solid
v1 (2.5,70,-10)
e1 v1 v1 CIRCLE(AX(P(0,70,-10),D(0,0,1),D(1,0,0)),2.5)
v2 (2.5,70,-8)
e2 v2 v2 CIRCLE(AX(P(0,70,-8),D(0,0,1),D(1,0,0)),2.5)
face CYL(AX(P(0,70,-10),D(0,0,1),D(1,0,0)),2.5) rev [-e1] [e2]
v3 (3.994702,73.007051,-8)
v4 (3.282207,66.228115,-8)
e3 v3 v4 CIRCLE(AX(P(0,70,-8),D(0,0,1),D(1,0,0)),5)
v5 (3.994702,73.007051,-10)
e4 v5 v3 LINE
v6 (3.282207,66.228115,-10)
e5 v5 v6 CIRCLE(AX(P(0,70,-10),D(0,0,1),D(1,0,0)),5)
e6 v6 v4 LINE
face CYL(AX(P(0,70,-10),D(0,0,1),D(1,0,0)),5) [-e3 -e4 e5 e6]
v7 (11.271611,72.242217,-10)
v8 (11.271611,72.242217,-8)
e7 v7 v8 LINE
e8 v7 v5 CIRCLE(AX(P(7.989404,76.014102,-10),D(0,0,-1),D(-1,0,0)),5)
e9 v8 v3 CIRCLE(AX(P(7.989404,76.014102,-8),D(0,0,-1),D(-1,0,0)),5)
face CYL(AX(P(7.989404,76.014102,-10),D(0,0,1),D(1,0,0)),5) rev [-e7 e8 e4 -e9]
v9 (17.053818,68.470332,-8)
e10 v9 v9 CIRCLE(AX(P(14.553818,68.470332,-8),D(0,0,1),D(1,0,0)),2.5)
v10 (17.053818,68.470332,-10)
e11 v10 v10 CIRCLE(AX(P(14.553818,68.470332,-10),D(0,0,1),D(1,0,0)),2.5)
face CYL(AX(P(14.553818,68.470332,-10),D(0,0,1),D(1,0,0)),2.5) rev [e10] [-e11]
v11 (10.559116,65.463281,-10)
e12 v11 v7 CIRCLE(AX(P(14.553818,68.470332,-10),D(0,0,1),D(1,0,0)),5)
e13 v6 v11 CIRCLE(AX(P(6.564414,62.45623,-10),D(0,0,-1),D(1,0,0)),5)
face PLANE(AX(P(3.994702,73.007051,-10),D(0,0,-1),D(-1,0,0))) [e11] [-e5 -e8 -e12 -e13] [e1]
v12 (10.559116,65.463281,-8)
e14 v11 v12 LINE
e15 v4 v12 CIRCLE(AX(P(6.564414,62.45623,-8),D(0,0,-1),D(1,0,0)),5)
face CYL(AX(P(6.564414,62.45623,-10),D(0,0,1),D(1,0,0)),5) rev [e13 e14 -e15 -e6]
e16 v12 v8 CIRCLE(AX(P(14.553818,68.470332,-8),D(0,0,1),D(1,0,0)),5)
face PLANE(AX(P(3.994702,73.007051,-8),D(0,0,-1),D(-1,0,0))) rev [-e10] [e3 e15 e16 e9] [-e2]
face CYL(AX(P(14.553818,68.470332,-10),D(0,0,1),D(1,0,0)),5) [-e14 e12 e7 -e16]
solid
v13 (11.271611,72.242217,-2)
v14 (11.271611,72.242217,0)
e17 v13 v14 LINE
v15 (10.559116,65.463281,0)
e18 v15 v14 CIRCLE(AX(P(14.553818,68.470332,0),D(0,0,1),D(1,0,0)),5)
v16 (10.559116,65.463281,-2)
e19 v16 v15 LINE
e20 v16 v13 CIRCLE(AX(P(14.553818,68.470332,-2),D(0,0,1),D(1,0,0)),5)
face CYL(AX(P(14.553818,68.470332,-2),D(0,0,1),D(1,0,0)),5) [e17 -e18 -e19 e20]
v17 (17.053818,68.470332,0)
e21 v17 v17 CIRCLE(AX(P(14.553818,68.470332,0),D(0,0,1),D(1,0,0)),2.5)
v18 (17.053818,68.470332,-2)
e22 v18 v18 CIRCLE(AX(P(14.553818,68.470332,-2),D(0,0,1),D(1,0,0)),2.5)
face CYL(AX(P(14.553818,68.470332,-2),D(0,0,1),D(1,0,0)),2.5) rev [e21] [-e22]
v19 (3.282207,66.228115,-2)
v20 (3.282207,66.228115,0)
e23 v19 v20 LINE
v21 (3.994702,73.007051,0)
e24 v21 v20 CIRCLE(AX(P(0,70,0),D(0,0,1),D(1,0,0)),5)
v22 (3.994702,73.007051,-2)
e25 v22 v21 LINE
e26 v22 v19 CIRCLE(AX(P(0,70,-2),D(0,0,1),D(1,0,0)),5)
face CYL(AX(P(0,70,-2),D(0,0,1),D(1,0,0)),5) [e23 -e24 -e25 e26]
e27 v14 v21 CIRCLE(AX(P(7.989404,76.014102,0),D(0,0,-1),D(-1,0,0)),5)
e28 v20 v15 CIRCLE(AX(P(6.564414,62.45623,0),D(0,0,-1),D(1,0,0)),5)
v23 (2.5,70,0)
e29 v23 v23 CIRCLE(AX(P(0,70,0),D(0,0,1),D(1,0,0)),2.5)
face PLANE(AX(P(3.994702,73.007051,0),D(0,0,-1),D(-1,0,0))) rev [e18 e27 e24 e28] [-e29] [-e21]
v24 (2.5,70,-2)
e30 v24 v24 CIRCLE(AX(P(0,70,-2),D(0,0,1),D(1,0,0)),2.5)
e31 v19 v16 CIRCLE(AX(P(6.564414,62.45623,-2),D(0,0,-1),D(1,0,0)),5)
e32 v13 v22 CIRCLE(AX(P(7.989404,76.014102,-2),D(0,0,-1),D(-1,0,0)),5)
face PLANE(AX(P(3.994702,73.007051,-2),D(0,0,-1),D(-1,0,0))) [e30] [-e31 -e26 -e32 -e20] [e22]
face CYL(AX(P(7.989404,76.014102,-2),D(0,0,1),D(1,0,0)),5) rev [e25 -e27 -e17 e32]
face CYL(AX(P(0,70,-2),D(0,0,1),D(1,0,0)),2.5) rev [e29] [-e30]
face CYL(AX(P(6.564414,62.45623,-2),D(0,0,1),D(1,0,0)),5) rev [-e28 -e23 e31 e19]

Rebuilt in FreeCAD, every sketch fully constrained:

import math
import FreeCAD as App
import Part
import Sketcher

V = App.Vector
Q = App.Units.Quantity

doc = App.newDocument("Part")
body = doc.addObject("PartDesign::Body", "Body")

# Sketch on XY plane
sketch1 = body.newObject("Sketcher::SketchObject", "Sketch")
sketch1.AttachmentSupport = (doc.getObject("XY_Plane"), [""])
sketch1.MapMode = "FlatFace"
sketch1.addGeometry([
    Part.ArcOfCircle(Part.Circle(V(6.6, 62.5, 0), V(0, 0, 1), 5), math.radians(37), math.radians(131)),  # 0
    Part.ArcOfCircle(Part.Circle(V(14.6, 68.5, 0), V(0, 0, 1), 5), math.radians(-143), math.radians(131)),  # 1
    Part.ArcOfCircle(Part.Circle(V(8, 76, 0), V(0, 0, 1), 5), math.radians(-143), math.radians(-49)),  # 2
    Part.ArcOfCircle(Part.Circle(V(0, 70, 0), V(0, 0, 1), 5), math.radians(37), math.radians(311)),  # 3
    Part.Circle(V(14.6, 68.5, 0), V(0, 0, 1), 2.5),  # 4
    Part.Circle(V(0, 70, 0), V(0, 0, 1), 2.5),  # 5
], False)
sketch1.addConstraint([
    Sketcher.Constraint("Tangent", 0, 1, 1, 1),
    Sketcher.Constraint("Tangent", 1, 2, 2, 2),
    Sketcher.Constraint("Tangent", 2, 1, 3, 1),
    Sketcher.Constraint("Tangent", 3, 2, 0, 2),
    Sketcher.Constraint("Coincident", 4, 3, 1, 3),
    Sketcher.Constraint("Coincident", 5, 3, 3, 3),
    Sketcher.Constraint("Equal", 0, 1),
    Sketcher.Constraint("Equal", 1, 2),
    Sketcher.Constraint("Equal", 2, 3),
    Sketcher.Constraint("Equal", 4, 5),
    Sketcher.Constraint("PointOnObject", 3, 3, -2),
    Sketcher.Constraint("Diameter", 4, Q("5 mm")),
    Sketcher.Constraint("Radius", 0, Q("5 mm")),
    Sketcher.Constraint("DistanceY", -1, 1, 3, 3, Q("70 mm")),
    Sketcher.Constraint("DistanceY", -1, 1, 2, 3, Q("76.014102 mm")),
    Sketcher.Constraint("DistanceY", -1, 1, 0, 3, Q("62.45623 mm")),
])
pad1 = body.newObject("PartDesign::Pad", "Pad")
pad1.Profile = sketch1
pad1.Length = 2
pad1.Reversed = True
body2 = doc.addObject("PartDesign::Body", "Body001")

# Sketch on XY plane
sketch2 = body2.newObject("Sketcher::SketchObject", "Sketch001")
sketch2.AttachmentSupport = (doc.getObject("XY_Plane001"), [""])
sketch2.MapMode = "FlatFace"
sketch2.AttachmentOffset = App.Placement(V(0, 0, -8), App.Rotation())
sketch2.addGeometry([
    Part.ArcOfCircle(Part.Circle(V(6.6, 62.5, 0), V(0, 0, 1), 5), math.radians(37), math.radians(131)),  # 0
    Part.ArcOfCircle(Part.Circle(V(14.6, 68.5, 0), V(0, 0, 1), 5), math.radians(-143), math.radians(131)),  # 1
    Part.ArcOfCircle(Part.Circle(V(8, 76, 0), V(0, 0, 1), 5), math.radians(-143), math.radians(-49)),  # 2
    Part.ArcOfCircle(Part.Circle(V(0, 70, 0), V(0, 0, 1), 5), math.radians(37), math.radians(311)),  # 3
    Part.Circle(V(14.6, 68.5, 0), V(0, 0, 1), 2.5),  # 4
    Part.Circle(V(0, 70, 0), V(0, 0, 1), 2.5),  # 5
], False)
sketch2.addConstraint([
    Sketcher.Constraint("Tangent", 0, 1, 1, 1),
    Sketcher.Constraint("Tangent", 1, 2, 2, 2),
    Sketcher.Constraint("Tangent", 2, 1, 3, 1),
    Sketcher.Constraint("Tangent", 3, 2, 0, 2),
    Sketcher.Constraint("Coincident", 4, 3, 1, 3),
    Sketcher.Constraint("Coincident", 5, 3, 3, 3),
    Sketcher.Constraint("Equal", 0, 1),
    Sketcher.Constraint("Equal", 1, 2),
    Sketcher.Constraint("Equal", 2, 3),
    Sketcher.Constraint("Equal", 4, 5),
    Sketcher.Constraint("PointOnObject", 3, 3, -2),
    Sketcher.Constraint("Diameter", 4, Q("5 mm")),
    Sketcher.Constraint("Radius", 0, Q("5 mm")),
    Sketcher.Constraint("DistanceY", -1, 1, 3, 3, Q("70 mm")),
    Sketcher.Constraint("DistanceY", -1, 1, 2, 3, Q("76.014102 mm")),
    Sketcher.Constraint("DistanceY", -1, 1, 0, 3, Q("62.45623 mm")),
])
pad2 = body2.newObject("PartDesign::Pad", "Pad001")
pad2.Profile = sketch2
pad2.Length = 2
pad2.Reversed = True

doc.recompute()
